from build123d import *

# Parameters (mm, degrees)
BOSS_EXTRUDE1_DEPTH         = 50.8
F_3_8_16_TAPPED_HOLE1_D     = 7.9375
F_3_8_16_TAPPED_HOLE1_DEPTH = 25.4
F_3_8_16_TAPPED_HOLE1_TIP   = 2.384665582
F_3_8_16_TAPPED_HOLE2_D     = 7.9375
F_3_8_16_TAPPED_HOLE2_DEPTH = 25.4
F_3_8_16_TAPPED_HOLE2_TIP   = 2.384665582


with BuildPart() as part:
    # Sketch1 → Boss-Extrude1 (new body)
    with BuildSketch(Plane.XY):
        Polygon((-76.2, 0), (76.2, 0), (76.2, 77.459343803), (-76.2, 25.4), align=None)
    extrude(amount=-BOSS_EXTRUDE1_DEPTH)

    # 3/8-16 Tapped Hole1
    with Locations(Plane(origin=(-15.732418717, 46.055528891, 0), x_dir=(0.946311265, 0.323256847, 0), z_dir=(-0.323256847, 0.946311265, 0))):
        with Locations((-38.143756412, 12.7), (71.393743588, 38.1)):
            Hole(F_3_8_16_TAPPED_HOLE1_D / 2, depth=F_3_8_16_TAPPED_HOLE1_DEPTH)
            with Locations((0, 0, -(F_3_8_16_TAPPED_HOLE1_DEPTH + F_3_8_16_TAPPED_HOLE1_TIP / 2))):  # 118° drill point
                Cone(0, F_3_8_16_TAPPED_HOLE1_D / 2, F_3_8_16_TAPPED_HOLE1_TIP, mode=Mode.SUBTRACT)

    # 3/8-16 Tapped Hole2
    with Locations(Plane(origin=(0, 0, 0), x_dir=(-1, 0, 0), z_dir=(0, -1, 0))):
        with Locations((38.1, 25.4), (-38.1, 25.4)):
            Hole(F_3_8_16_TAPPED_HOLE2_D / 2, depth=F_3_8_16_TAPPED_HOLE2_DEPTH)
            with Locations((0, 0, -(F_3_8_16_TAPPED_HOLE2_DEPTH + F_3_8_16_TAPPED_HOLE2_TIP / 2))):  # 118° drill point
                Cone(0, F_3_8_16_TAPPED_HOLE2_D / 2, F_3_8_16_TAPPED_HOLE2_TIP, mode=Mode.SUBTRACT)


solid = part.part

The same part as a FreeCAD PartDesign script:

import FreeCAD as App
import Part
import Sketcher
from FreeCAD import Vector
Q = App.Units.Quantity


def add_polygon(sketch, points):
    """Adds a closed chain of lines whose ends are joined by coincident constraints."""
    first, n = sketch.GeometryCount, len(points)
    for a, b in zip(points, points[1:] + points[:1]):
        sketch.addGeometry(Part.LineSegment(App.Vector(*a, 0), App.Vector(*b, 0)), False)
    for i in range(n):
        sketch.addConstraint(Sketcher.Constraint("Coincident", first + i, 2, first + (i + 1) % n, 1))

doc = App.newDocument("Part")
body = doc.addObject("PartDesign::Body", "Body")

sketch1 = body.newObject("Sketcher::SketchObject", "Sketch")
sketch1.AttachmentSupport = (doc.getObject("XY_Plane"), [""])
sketch1.MapMode = "FlatFace"
add_polygon(sketch1, [(-76.2, 0), (76.2, 0), (76.2, 77.459344), (-76.2, 25.4)])
sketch1.addConstraint([
    Sketcher.Constraint("Horizontal", 0),
    Sketcher.Constraint("Vertical", 1),
    Sketcher.Constraint("Vertical", 3),
    Sketcher.Constraint("Symmetric", 0, 2, 3, 2, -1, 1),
    Sketcher.Constraint("DistanceX", 0, 1, 0, 2, Q("6 in")),
    Sketcher.Constraint("DistanceY", 3, 2, 3, 1, Q("1 in")),
    Sketcher.Constraint("Angle", 2, Q("-161.14 deg")),
])
pad1 = body.newObject("PartDesign::Pad", "Pad")
pad1.Profile = sketch1
pad1.Length = Q("2 in")
pad1.Reversed = True

sketch2 = body.newObject("Sketcher::SketchObject", "Sketch001")
sketch2.Placement = App.Placement(Vector(-15.732419, 46.055529, 0), App.Rotation(Vector(0.946311265, 0.323256847, 0), Vector(0, 0, -0.999999999), Vector(-0.323256847, 0.946311265, 0), "ZXY"))
sketch2.addGeometry([
    Part.Circle(Vector(-38.143756, 12.7, 0), Vector(0, 0, 1), 3.96875),
    Part.Circle(Vector(71.393744, 38.1, 0), Vector(0, 0, 1), 3.96875),
], False)
sketch2.addConstraint([
    Sketcher.Constraint("Equal", 0, 1),
    Sketcher.Constraint("Diameter", 0, Q("0.3125 in")),
    Sketcher.Constraint("DistanceY", 0, 3, 1, 3, Q("1 in")),
    Sketcher.Constraint("DistanceY", -1, 1, 0, 3, Q("0.5 in")),
    Sketcher.Constraint("DistanceX", 0, 3, 1, 3, Q("4.3125 in")),
    Sketcher.Constraint("DistanceX", 0, 3, -1, 1, 38.143756),
])
doc.recompute()
hole = body.newObject("PartDesign::Hole", "Hole")
hole.Profile = sketch2
hole.ThreadType = "None"
hole.Diameter = Q("0.3125 in")
hole.DepthType = "Dimension"
hole.Depth = Q("1 in")
hole.DrillPoint = "Angled"
hole.DrillPointAngle = 118

sketch3 = body.newObject("Sketcher::SketchObject", "Sketch002")
sketch3.AttachmentSupport = (doc.getObject("XZ_Plane"), [""])
sketch3.MapMode = "FlatFace"
sketch3.addGeometry([
    Part.Circle(Vector(-38.1, -25.4, 0), Vector(0, 0, 1), 3.96875),
    Part.Circle(Vector(38.1, -25.4, 0), Vector(0, 0, 1), 3.96875),
], False)
sketch3.addConstraint([
    Sketcher.Constraint("Equal", 0, 1),
    Sketcher.Constraint("Symmetric", 0, 3, 1, 3, -2),
    Sketcher.Constraint("Diameter", 0, Q("0.3125 in")),
    Sketcher.Constraint("DistanceY", 0, 3, -1, 1, Q("1 in")),
    Sketcher.Constraint("DistanceX", 0, 3, 1, 3, Q("3 in")),
])
doc.recompute()
hole2 = body.newObject("PartDesign::Hole", "Hole001")
hole2.Profile = sketch3
hole2.ThreadType = "None"
hole2.Diameter = Q("0.3125 in")
hole2.DepthType = "Dimension"
hole2.Depth = Q("1 in")
hole2.DrillPoint = "Angled"
hole2.DrillPointAngle = 118

doc.recompute()
